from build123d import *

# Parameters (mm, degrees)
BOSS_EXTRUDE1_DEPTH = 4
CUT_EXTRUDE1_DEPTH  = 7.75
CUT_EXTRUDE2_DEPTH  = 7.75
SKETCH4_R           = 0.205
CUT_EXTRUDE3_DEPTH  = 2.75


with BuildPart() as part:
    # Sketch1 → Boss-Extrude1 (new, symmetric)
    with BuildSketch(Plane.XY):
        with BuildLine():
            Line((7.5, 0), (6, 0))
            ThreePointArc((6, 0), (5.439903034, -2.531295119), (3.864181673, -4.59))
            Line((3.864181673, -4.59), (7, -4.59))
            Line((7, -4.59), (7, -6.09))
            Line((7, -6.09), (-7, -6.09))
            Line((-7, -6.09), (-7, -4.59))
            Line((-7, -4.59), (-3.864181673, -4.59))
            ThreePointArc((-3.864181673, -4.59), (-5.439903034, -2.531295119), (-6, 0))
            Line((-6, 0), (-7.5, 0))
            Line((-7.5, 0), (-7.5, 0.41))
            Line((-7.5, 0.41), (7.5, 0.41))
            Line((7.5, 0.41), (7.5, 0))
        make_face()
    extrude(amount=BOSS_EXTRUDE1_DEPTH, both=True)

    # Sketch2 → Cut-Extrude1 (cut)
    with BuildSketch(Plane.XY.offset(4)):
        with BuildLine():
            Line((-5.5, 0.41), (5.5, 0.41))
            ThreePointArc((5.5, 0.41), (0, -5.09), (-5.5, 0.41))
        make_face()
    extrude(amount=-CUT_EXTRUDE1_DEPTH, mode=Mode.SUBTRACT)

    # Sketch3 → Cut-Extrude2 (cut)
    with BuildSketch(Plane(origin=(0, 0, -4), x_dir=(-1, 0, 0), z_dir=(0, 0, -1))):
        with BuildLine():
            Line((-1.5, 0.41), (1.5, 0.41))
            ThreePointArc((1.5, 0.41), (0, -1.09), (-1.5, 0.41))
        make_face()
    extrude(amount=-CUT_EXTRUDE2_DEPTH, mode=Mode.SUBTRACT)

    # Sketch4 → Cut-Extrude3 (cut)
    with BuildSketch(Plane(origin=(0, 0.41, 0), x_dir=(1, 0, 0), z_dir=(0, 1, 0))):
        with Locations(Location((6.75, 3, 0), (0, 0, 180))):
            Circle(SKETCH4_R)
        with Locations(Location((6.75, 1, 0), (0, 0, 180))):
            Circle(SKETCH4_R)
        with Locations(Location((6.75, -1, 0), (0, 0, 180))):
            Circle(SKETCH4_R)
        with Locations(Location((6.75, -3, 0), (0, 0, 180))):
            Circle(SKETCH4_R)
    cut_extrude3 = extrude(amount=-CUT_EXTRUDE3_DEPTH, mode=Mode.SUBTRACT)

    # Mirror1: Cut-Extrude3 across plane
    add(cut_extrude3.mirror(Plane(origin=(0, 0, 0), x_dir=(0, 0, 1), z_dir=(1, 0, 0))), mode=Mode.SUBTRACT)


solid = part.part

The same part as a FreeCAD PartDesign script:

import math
import FreeCAD as App
import Part
import Sketcher
Q = App.Units.Quantity

doc = App.newDocument("Part")
body = doc.addObject("PartDesign::Body", "Body")

# Sketch on XY plane
sketch1 = body.newObject("Sketcher::SketchObject", "Sketch")
sketch1.AttachmentSupport = (doc.getObject("XY_Plane"), [""])
sketch1.MapMode = "FlatFace"
sketch1.addGeometry([
    Part.LineSegment(App.Vector(6, 0, 0), App.Vector(7.5, 0, 0)),  # 0
    Part.LineSegment(App.Vector(7.5, 0, 0), App.Vector(7.5, 0.41, 0)),  # 1
    Part.LineSegment(App.Vector(7.5, 0.41, 0), App.Vector(-7.5, 0.41, 0)),  # 2
    Part.LineSegment(App.Vector(-7.5, 0.41, 0), App.Vector(-7.5, 0, 0)),  # 3
    Part.LineSegment(App.Vector(-7.5, 0, 0), App.Vector(-6, 0, 0)),  # 4
    Part.ArcOfCircle(Part.Circle(App.Vector(0, 0, 0), App.Vector(0, 0, 1), 6), math.radians(-180), math.radians(-130.093008)),  # 5
    Part.LineSegment(App.Vector(-3.864182, -4.59, 0), App.Vector(-7, -4.59, 0)),  # 6
    Part.LineSegment(App.Vector(-7, -4.59, 0), App.Vector(-7, -6.09, 0)),  # 7
    Part.LineSegment(App.Vector(-7, -6.09, 0), App.Vector(7, -6.09, 0)),  # 8
    Part.LineSegment(App.Vector(7, -6.09, 0), App.Vector(7, -4.59, 0)),  # 9
    Part.LineSegment(App.Vector(7, -4.59, 0), App.Vector(3.864182, -4.59, 0)),  # 10
    Part.ArcOfCircle(Part.Circle(App.Vector(0, 0, 0), App.Vector(0, 0, 1), 6), math.radians(-49.906992), math.radians(0)),  # 11
], False)
sketch1.addConstraint([
    Sketcher.Constraint("Coincident", 0, 2, 1, 1),
    Sketcher.Constraint("Coincident", 1, 2, 2, 1),
    Sketcher.Constraint("Coincident", 2, 2, 3, 1),
    Sketcher.Constraint("Coincident", 3, 2, 4, 1),
    Sketcher.Constraint("Coincident", 4, 2, 5, 1),
    Sketcher.Constraint("Coincident", 5, 2, 6, 1),
    Sketcher.Constraint("Coincident", 6, 2, 7, 1),
    Sketcher.Constraint("Coincident", 7, 2, 8, 1),
    Sketcher.Constraint("Coincident", 8, 2, 9, 1),
    Sketcher.Constraint("Coincident", 9, 2, 10, 1),
    Sketcher.Constraint("Coincident", 10, 2, 11, 1),
    Sketcher.Constraint("Coincident", 11, 2, 0, 1),
    Sketcher.Constraint("Horizontal", 0),
    Sketcher.Constraint("Vertical", 1),
    Sketcher.Constraint("Horizontal", 2),
    Sketcher.Constraint("Vertical", 3),
    Sketcher.Constraint("Horizontal", 4),
    Sketcher.Constraint("Horizontal", 6),
    Sketcher.Constraint("Vertical", 7),
    Sketcher.Constraint("Horizontal", 8),
    Sketcher.Constraint("Vertical", 9),
    Sketcher.Constraint("Horizontal", 10),
    Sketcher.Constraint("Coincident", 5, 3, -1, 1),
    Sketcher.Constraint("Coincident", 11, 3, -1, 1),
    Sketcher.Constraint("Equal", 5, 11),
    Sketcher.Constraint("Symmetric", 0, 2, 3, 2, -1, 1),
    Sketcher.Constraint("Symmetric", 6, 2, 9, 2, -2),
    Sketcher.Constraint("PointOnObject", 0, 2, -1),
    Sketcher.Constraint("Equal", 4, 7),
    Sketcher.Constraint("Radius", 5, Q("6 mm")),
    Sketcher.Constraint("DistanceX", 2, 2, 2, 1, Q("15 mm")),
    Sketcher.Constraint("DistanceX", 8, 1, 8, 2, Q("14 mm")),
    Sketcher.Constraint("DistanceY", 5, 2, 2, 2, Q("5 mm")),
    Sketcher.Constraint("DistanceY", 1, 1, 1, 2, Q("0.41 mm")),
])
pad1 = body.newObject("PartDesign::Pad", "Pad")
pad1.Profile = sketch1
pad1.Length = 8
pad1.Midplane = True

# Sketch on XY plane
sketch2 = body.newObject("Sketcher::SketchObject", "Sketch001")
sketch2.AttachmentSupport = (doc.getObject("XY_Plane"), [""])
sketch2.MapMode = "FlatFace"
sketch2.AttachmentOffset = App.Placement(App.Vector(0, 0, 4), App.Rotation())
sketch2.addGeometry([
    Part.LineSegment(App.Vector(5.5, 0.41, 0), App.Vector(-5.5, 0.41, 0)),
    Part.ArcOfCircle(Part.Circle(App.Vector(0, 0.41, 0), App.Vector(0, 0, 1), 5.5), math.radians(180), math.radians(360)),
], False)
sketch2.addConstraint([
    Sketcher.Constraint("Coincident", 0, 1, 1, 2),
    Sketcher.Constraint("Coincident", 1, 1, 0, 2),
    Sketcher.Constraint("Horizontal", 0),
    Sketcher.Constraint("PointOnObject", 1, 3, -2),
    Sketcher.Constraint("Horizontal", 1, 3, 0, 1),
    Sketcher.Constraint("Radius", 1, Q("5.5 mm")),
    Sketcher.Constraint("DistanceY", -1, 1, 1, 3, Q("0.41 mm")),
])
pocket1 = body.newObject("PartDesign::Pocket", "Pocket")
pocket1.Profile = sketch2
pocket1.Length = 7.75

# Sketch on XY plane
sketch3 = body.newObject("Sketcher::SketchObject", "Sketch002")
sketch3.AttachmentSupport = (doc.getObject("XY_Plane"), [""])
sketch3.MapMode = "FlatFace"
sketch3.AttachmentOffset = App.Placement(App.Vector(0, 0, -4), App.Rotation())
sketch3.addGeometry([
    Part.LineSegment(App.Vector(-1.5, 0.41, 0), App.Vector(1.5, 0.41, 0)),
    Part.ArcOfCircle(Part.Circle(App.Vector(0, 0.41, 0), App.Vector(0, 0, 1), 1.5), math.radians(180), math.radians(360)),
], False)
sketch3.addConstraint([
    Sketcher.Constraint("Coincident", 0, 1, 1, 1),
    Sketcher.Constraint("Coincident", 1, 2, 0, 2),
    Sketcher.Constraint("Horizontal", 0),
    Sketcher.Constraint("PointOnObject", 1, 3, -2),
    Sketcher.Constraint("Horizontal", 1, 3, 0, 1),
    Sketcher.Constraint("Radius", 1, Q("1.5 mm")),
    Sketcher.Constraint("DistanceY", -1, 1, 1, 3, Q("0.41 mm")),
])
pocket2 = body.newObject("PartDesign::Pocket", "Pocket001")
pocket2.Profile = sketch3
pocket2.Length = 7.75
pocket2.Reversed = True

# Sketch on XZ plane
sketch4 = body.newObject("Sketcher::SketchObject", "Sketch003")
sketch4.AttachmentSupport = (doc.getObject("XZ_Plane"), [""])
sketch4.MapMode = "FlatFace"
sketch4.AttachmentOffset = App.Placement(App.Vector(0, 0, -0.41), App.Rotation())
sketch4.addGeometry([
    Part.Circle(App.Vector(6.75, -3, 0), App.Vector(0, 0, 1), 0.205),
    Part.Circle(App.Vector(6.75, -1, 0), App.Vector(0, 0, 1), 0.205),
    Part.Circle(App.Vector(6.75, 1, 0), App.Vector(0, 0, 1), 0.205),
    Part.Circle(App.Vector(6.75, 3, 0), App.Vector(0, 0, 1), 0.205),
], False)
sketch4.addConstraint([
    Sketcher.Constraint("Equal", 0, 1),
    Sketcher.Constraint("Equal", 1, 2),
    Sketcher.Constraint("Equal", 2, 3),
    Sketcher.Constraint("Symmetric", 1, 3, 2, 3, -1),
    Sketcher.Constraint("Symmetric", 0, 3, 3, 3, -1),
    Sketcher.Constraint("Vertical", 0, 3, 1, 3),
    Sketcher.Constraint("Diameter", 0, Q("0.41 mm")),
    Sketcher.Constraint("DistanceY", 0, 3, -1, 1, Q("3 mm")),
    Sketcher.Constraint("DistanceY", 1, 3, -1, 1, Q("1 mm")),
    Sketcher.Constraint("DistanceX", -1, 1, 0, 3, Q("6.75 mm")),
])
pocket3 = body.newObject("PartDesign::Pocket", "Pocket002")
pocket3.Profile = sketch4
pocket3.Length = 2.75
pocket3.Reversed = True
doc.recompute()

mirrored = body.newObject("PartDesign::Mirrored", "Mirrored")
mirrored.Originals = [pocket3]
mirrored.MirrorPlane = (doc.getObject("YZ_Plane"), [""])
body.Tip = mirrored

doc.recompute()
